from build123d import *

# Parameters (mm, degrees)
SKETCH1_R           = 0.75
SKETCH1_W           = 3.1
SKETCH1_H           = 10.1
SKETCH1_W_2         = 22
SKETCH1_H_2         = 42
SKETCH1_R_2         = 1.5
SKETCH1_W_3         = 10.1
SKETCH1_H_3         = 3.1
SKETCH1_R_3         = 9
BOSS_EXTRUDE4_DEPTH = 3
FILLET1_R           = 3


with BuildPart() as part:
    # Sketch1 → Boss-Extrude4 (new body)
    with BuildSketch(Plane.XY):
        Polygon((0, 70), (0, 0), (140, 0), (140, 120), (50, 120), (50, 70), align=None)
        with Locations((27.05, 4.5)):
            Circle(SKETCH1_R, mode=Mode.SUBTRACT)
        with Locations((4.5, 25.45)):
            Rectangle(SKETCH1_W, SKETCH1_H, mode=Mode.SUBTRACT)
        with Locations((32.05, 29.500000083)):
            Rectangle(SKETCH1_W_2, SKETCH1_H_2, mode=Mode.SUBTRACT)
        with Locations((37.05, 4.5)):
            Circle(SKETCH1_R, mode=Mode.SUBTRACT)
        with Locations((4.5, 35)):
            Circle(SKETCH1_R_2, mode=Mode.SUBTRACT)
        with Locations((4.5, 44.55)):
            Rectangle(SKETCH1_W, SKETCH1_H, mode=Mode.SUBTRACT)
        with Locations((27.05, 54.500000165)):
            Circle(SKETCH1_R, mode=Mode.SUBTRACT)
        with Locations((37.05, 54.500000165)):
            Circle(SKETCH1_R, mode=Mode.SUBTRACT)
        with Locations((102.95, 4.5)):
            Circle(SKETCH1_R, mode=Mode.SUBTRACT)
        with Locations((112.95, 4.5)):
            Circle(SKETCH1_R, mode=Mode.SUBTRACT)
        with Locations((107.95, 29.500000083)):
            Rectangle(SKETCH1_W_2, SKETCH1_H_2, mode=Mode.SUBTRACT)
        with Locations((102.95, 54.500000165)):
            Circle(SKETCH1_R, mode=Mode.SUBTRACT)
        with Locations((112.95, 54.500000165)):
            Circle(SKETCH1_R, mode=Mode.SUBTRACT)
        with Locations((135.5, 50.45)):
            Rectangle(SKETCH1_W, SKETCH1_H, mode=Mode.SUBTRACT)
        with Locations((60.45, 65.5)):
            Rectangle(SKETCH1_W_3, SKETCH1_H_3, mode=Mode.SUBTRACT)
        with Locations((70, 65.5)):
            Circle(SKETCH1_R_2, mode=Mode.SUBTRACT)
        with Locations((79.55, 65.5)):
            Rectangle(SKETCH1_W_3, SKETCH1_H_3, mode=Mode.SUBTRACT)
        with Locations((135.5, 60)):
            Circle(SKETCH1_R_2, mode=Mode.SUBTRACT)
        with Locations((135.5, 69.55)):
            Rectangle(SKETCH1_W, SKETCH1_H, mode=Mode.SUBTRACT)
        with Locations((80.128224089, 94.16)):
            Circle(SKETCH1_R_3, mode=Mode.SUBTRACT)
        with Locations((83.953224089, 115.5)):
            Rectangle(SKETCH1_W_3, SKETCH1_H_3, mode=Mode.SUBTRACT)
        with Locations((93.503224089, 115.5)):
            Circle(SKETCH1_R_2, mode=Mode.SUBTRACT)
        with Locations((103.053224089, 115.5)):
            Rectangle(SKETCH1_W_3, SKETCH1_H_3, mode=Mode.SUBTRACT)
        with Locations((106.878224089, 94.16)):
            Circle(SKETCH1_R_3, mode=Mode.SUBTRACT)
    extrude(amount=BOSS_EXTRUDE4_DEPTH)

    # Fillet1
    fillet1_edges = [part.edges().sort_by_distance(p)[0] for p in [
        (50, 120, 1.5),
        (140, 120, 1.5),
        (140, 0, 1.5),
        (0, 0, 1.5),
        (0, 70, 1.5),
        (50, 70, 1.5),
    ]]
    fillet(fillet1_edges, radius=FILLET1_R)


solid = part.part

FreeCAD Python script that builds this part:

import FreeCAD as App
import Part
import Sketcher


def edges_at(feature, points):
    """Names of the edges that pass closest to the given points."""
    edges = feature.Shape.Edges
    near = lambda p: min(range(len(edges)), key=lambda i: edges[i].distToShape(Part.Vertex(*p))[0])
    return sorted({f"Edge{near(p) + 1}" for p in points})


def add_polygon(sketch, points):
    """Adds a closed chain of lines whose ends are joined by coincident constraints."""
    first, n = sketch.GeometryCount, len(points)
    for a, b in zip(points, points[1:] + points[:1]):
        sketch.addGeometry(Part.LineSegment(App.Vector(*a, 0), App.Vector(*b, 0)), False)
    for i in range(n):
        sketch.addConstraint(Sketcher.Constraint("Coincident", first + i, 2, first + (i + 1) % n, 1))

doc = App.newDocument("Part")
body = doc.addObject("PartDesign::Body", "Body")

# Sketch on XY plane
sketch1 = body.newObject("Sketcher::SketchObject", "Sketch")
sketch1.AttachmentSupport = (doc.getObject("XY_Plane"), [""])
sketch1.MapMode = "FlatFace"
add_polygon(sketch1, [(0, 70), (0, 0), (140, 0), (140, 120), (50, 120), (50, 70)])  # lines 0-5
sketch1.addGeometry(Part.Circle(App.Vector(27.1, 4.5, 0), App.Vector(0, 0, 1), 0.8), False)  # 6
add_polygon(sketch1, [(6, 20.4), (3, 20.4), (3, 30.5), (6, 30.5)])  # lines 7-10
add_polygon(sketch1, [(43, 8.5), (21.1, 8.5), (21.1, 50.5), (43, 50.5)])  # lines 11-14
sketch1.addGeometry(Part.Circle(App.Vector(37, 4.5, 0), App.Vector(0, 0, 1), 0.8), False)  # 15
sketch1.addGeometry(Part.Circle(App.Vector(4.5, 35, 0), App.Vector(0, 0, 1), 1.5), False)  # 16
add_polygon(sketch1, [(6, 39.5), (3, 39.5), (3, 49.6), (6, 49.6)])  # lines 17-20
sketch1.addGeometry(Part.Circle(App.Vector(27.1, 54.5, 0), App.Vector(0, 0, 1), 0.8), False)  # 21
sketch1.addGeometry(Part.Circle(App.Vector(37, 54.5, 0), App.Vector(0, 0, 1), 0.8), False)  # 22
sketch1.addGeometry(Part.Circle(App.Vector(103, 4.5, 0), App.Vector(0, 0, 1), 0.8), False)  # 23
sketch1.addGeometry(Part.Circle(App.Vector(113, 4.5, 0), App.Vector(0, 0, 1), 0.8), False)  # 24
add_polygon(sketch1, [(119, 8.5), (97, 8.5), (97, 50.5), (119, 50.5)])  # lines 25-28
sketch1.addGeometry(Part.Circle(App.Vector(103, 54.5, 0), App.Vector(0, 0, 1), 0.8), False)  # 29
sketch1.addGeometry(Part.Circle(App.Vector(113, 54.5, 0), App.Vector(0, 0, 1), 0.8), False)  # 30
add_polygon(sketch1, [(137.1, 45.4), (133.9, 45.4), (133.9, 55.5), (137.1, 55.5)])  # lines 31-34
sketch1.addGeometry(Part.Circle(App.Vector(135.5, 60, 0), App.Vector(0, 0, 1), 1.5), False)  # 35
add_polygon(sketch1, [(65.5, 64), (55.4, 64), (55.4, 67), (65.5, 67)])  # lines 36-39
sketch1.addGeometry(Part.Circle(App.Vector(70, 65.5, 0), App.Vector(0, 0, 1), 1.5), False)  # 40
add_polygon(sketch1, [(84.6, 64), (74.5, 64), (74.5, 67), (84.6, 67)])  # lines 41-44
add_polygon(sketch1, [(137.1, 64.5), (133.9, 64.5), (133.9, 74.6), (137.1, 74.6)])  # lines 45-48
sketch1.addGeometry(Part.Circle(App.Vector(80.1, 94.2, 0), App.Vector(0, 0, 1), 9), False)  # 49
add_polygon(sketch1, [(89, 114), (78.9, 114), (78.9, 117), (89, 117)])  # lines 50-53
sketch1.addGeometry(Part.Circle(App.Vector(93.5, 115.5, 0), App.Vector(0, 0, 1), 1.5), False)  # 54
add_polygon(sketch1, [(108.1, 114), (98, 114), (98, 117), (108.1, 117)])  # lines 55-58
sketch1.addGeometry(Part.Circle(App.Vector(106.9, 94.2, 0), App.Vector(0, 0, 1), 9), False)  # 59
sketch1.addConstraint(Sketcher.Constraint("Vertical", 0))
sketch1.addConstraint(Sketcher.Constraint("Horizontal", 1))
sketch1.addConstraint(Sketcher.Constraint("Vertical", 2))
sketch1.addConstraint(Sketcher.Constraint("Horizontal", 3))
sketch1.addConstraint(Sketcher.Constraint("Vertical", 4))
sketch1.addConstraint(Sketcher.Constraint("Horizontal", 5))
sketch1.addConstraint(Sketcher.Constraint("Horizontal", 7))
sketch1.addConstraint(Sketcher.Constraint("Vertical", 8))
sketch1.addConstraint(Sketcher.Constraint("Horizontal", 9))
sketch1.addConstraint(Sketcher.Constraint("Vertical", 10))
sketch1.addConstraint(Sketcher.Constraint("Horizontal", 11))
sketch1.addConstraint(Sketcher.Constraint("Vertical", 12))
sketch1.addConstraint(Sketcher.Constraint("Horizontal", 13))
sketch1.addConstraint(Sketcher.Constraint("Vertical", 14))
sketch1.addConstraint(Sketcher.Constraint("Horizontal", 17))
sketch1.addConstraint(Sketcher.Constraint("Vertical", 18))
sketch1.addConstraint(Sketcher.Constraint("Horizontal", 19))
sketch1.addConstraint(Sketcher.Constraint("Vertical", 20))
sketch1.addConstraint(Sketcher.Constraint("Horizontal", 25))
sketch1.addConstraint(Sketcher.Constraint("Vertical", 26))
sketch1.addConstraint(Sketcher.Constraint("Horizontal", 27))
sketch1.addConstraint(Sketcher.Constraint("Vertical", 28))
sketch1.addConstraint(Sketcher.Constraint("Horizontal", 31))
sketch1.addConstraint(Sketcher.Constraint("Vertical", 32))
sketch1.addConstraint(Sketcher.Constraint("Horizontal", 33))
sketch1.addConstraint(Sketcher.Constraint("Vertical", 34))
sketch1.addConstraint(Sketcher.Constraint("Horizontal", 36))
sketch1.addConstraint(Sketcher.Constraint("Vertical", 37))
sketch1.addConstraint(Sketcher.Constraint("Horizontal", 38))
sketch1.addConstraint(Sketcher.Constraint("Vertical", 39))
sketch1.addConstraint(Sketcher.Constraint("Horizontal", 41))
sketch1.addConstraint(Sketcher.Constraint("Vertical", 42))
sketch1.addConstraint(Sketcher.Constraint("Horizontal", 43))
sketch1.addConstraint(Sketcher.Constraint("Vertical", 44))
sketch1.addConstraint(Sketcher.Constraint("Horizontal", 45))
sketch1.addConstraint(Sketcher.Constraint("Vertical", 46))
sketch1.addConstraint(Sketcher.Constraint("Horizontal", 47))
sketch1.addConstraint(Sketcher.Constraint("Vertical", 48))
sketch1.addConstraint(Sketcher.Constraint("Horizontal", 50))
sketch1.addConstraint(Sketcher.Constraint("Vertical", 51))
sketch1.addConstraint(Sketcher.Constraint("Horizontal", 52))
sketch1.addConstraint(Sketcher.Constraint("Vertical", 53))
sketch1.addConstraint(Sketcher.Constraint("Horizontal", 55))
sketch1.addConstraint(Sketcher.Constraint("Vertical", 56))
sketch1.addConstraint(Sketcher.Constraint("Horizontal", 57))
sketch1.addConstraint(Sketcher.Constraint("Vertical", 58))
sketch1.addConstraint(Sketcher.Constraint("Coincident", 0, 2, -1, 1))
sketch1.addConstraint(Sketcher.Constraint("Equal", 6, 15))
sketch1.addConstraint(Sketcher.Constraint("Equal", 15, 21))
sketch1.addConstraint(Sketcher.Constraint("Equal", 21, 22))
sketch1.addConstraint(Sketcher.Constraint("Equal", 22, 23))
sketch1.addConstraint(Sketcher.Constraint("Equal", 23, 24))
sketch1.addConstraint(Sketcher.Constraint("Equal", 24, 29))
sketch1.addConstraint(Sketcher.Constraint("Equal", 29, 30))
sketch1.addConstraint(Sketcher.Constraint("Equal", 16, 35))
sketch1.addConstraint(Sketcher.Constraint("Equal", 35, 40))
sketch1.addConstraint(Sketcher.Constraint("Equal", 40, 54))
sketch1.addConstraint(Sketcher.Constraint("Equal", 49, 59))
sketch1.addConstraint(Sketcher.Constraint("Horizontal", 6, 3, 15, 3))
sketch1.addConstraint(Sketcher.Constraint("Horizontal", 21, 3, 22, 3))
sketch1.addConstraint(Sketcher.Constraint("Horizontal", 15, 3, 23, 3))
sketch1.addConstraint(Sketcher.Constraint("Horizontal", 23, 3, 24, 3))
sketch1.addConstraint(Sketcher.Constraint("Horizontal", 22, 3, 29, 3))
sketch1.addConstraint(Sketcher.Constraint("Horizontal", 29, 3, 30, 3))
sketch1.addConstraint(Sketcher.Constraint("Horizontal", 49, 3, 59, 3))
sketch1.addConstraint(Sketcher.Constraint("Horizontal", 14, 2, 25, 2))
sketch1.addConstraint(Sketcher.Constraint("Horizontal", 13, 2, 26, 2))
sketch1.addConstraint(Sketcher.Constraint("Horizontal", 39, 2, 41, 2))
sketch1.addConstraint(Sketcher.Constraint("Horizontal", 38, 2, 42, 2))
sketch1.addConstraint(Sketcher.Constraint("Horizontal", 53, 2, 55, 2))
sketch1.addConstraint(Sketcher.Constraint("Horizontal", 52, 2, 56, 2))
sketch1.addConstraint(Sketcher.Constraint("Vertical", 6, 3, 21, 3))
sketch1.addConstraint(Sketcher.Constraint("Vertical", 15, 3, 22, 3))
sketch1.addConstraint(Sketcher.Constraint("Vertical", 23, 3, 29, 3))
sketch1.addConstraint(Sketcher.Constraint("Vertical", 24, 3, 30, 3))
sketch1.addConstraint(Sketcher.Constraint("Vertical", 8, 2, 17, 2))
sketch1.addConstraint(Sketcher.Constraint("Vertical", 10, 2, 19, 2))
sketch1.addConstraint(Sketcher.Constraint("Vertical", 32, 2, 45, 2))
sketch1.addConstraint(Sketcher.Constraint("Vertical", 34, 2, 47, 2))
sketch1.addConstraint(Sketcher.Constraint("Equal", 13, 25))
sketch1.addConstraint(Sketcher.Constraint("Equal", 19, 31))
sketch1.addConstraint(Sketcher.Constraint("Equal", 38, 41))
sketch1.addConstraint(Sketcher.Constraint("Equal", 43, 50))
sketch1.addConstraint(Sketcher.Constraint("Equal", 52, 55))
sketch1.addConstraint(Sketcher.Constraint("Equal", 5, 4))
sketch1.addConstraint(Sketcher.Constraint("Equal", 57, 8))
sketch1.addConstraint(Sketcher.Constraint("Equal", 10, 18))
sketch1.addConstraint(Sketcher.Constraint("Equal", 20, 32))
sketch1.addConstraint(Sketcher.Constraint("Equal", 47, 37))
sketch1.addConstraint(Sketcher.Constraint("Equal", 34, 46))
sketch1.addConstraint(Sketcher.Constraint("Equal", 44, 51))
sketch1.addConstraint(Sketcher.Constraint("Diameter", 16, 3.0))
sketch1.addConstraint(Sketcher.Constraint("Diameter", 49, 18.0))
sketch1.addConstraint(Sketcher.Constraint("Diameter", 6, 1.5))
sketch1.addConstraint(Sketcher.Constraint("DistanceX", 1, 1, 1, 2, 140.0))
sketch1.addConstraint(Sketcher.Constraint("DistanceX", 3, 2, 3, 1, 90.0))
sketch1.addConstraint(Sketcher.Constraint("DistanceX", 11, 2, 11, 1, 22.0))
sketch1.addConstraint(Sketcher.Constraint("DistanceY", 0, 2, 0, 1, 70.0))
sketch1.addConstraint(Sketcher.Constraint("DistanceY", 12, 1, 12, 2, 42.0))
sketch1.addConstraint(Sketcher.Constraint("DistanceX", 7, 2, 7, 1, 3.1))
sketch1.addConstraint(Sketcher.Constraint("DistanceX", 36, 2, 36, 1, 10.1))
sketch1.addConstraint(Sketcher.Constraint("DistanceY", -1, 1, 16, 3, 35.0))
sketch1.addConstraint(Sketcher.Constraint("DistanceY", -1, 1, 35, 3, 60.0))
sketch1.addConstraint(Sketcher.Constraint("DistanceX", -1, 1, 40, 3, 70.0))
sketch1.addConstraint(Sketcher.Constraint("DistanceX", 6, 3, 15, 3, 10.0))
sketch1.addConstraint(Sketcher.Constraint("DistanceY", 6, 3, 21, 3, 50.0))
sketch1.addConstraint(Sketcher.Constraint("DistanceX", 23, 3, 24, 3, 10.0))
sketch1.addConstraint(Sketcher.Constraint("DistanceY", 22, 3, 40, 3, 11.0))
sketch1.addConstraint(Sketcher.Constraint("DistanceY", 40, 3, 54, 3, 50.0))
sketch1.addConstraint(Sketcher.Constraint("DistanceY", 8, 2, 21, 3, 24.0))
sketch1.addConstraint(Sketcher.Constraint("DistanceX", 9, 2, 21, 3, 21.0))
sketch1.addConstraint(Sketcher.Constraint("DistanceX", 11, 2, 6, 3, 6.0))
sketch1.addConstraint(Sketcher.Constraint("DistanceY", 6, 3, 11, 2, 4.0))
sketch1.addConstraint(Sketcher.Constraint("DistanceY", 8, 2, 17, 2, 9.0))
sketch1.addConstraint(Sketcher.Constraint("DistanceX", 25, 2, 23, 3, 6.0))
sketch1.addConstraint(Sketcher.Constraint("DistanceX", 27, 2, 31, 2, 15.0))
sketch1.addConstraint(Sketcher.Constraint("DistanceY", 27, 2, 32, 2, 5.0))
sketch1.addConstraint(Sketcher.Constraint("DistanceX", 39, 2, 41, 2, 9.0))
sketch1.addConstraint(Sketcher.Constraint("DistanceY", 32, 2, 45, 2, 9.0))
sketch1.addConstraint(Sketcher.Constraint("DistanceX", 53, 2, 55, 2, 9.0))
sketch1.addConstraint(Sketcher.Constraint("DistanceY", -1, 1, 6, 3, 4.5))
sketch1.addConstraint(Sketcher.Constraint("DistanceX", -1, 1, 16, 3, 4.5))
sketch1.addConstraint(Sketcher.Constraint("DistanceX", -1, 1, 35, 3, 135.5))
sketch1.addConstraint(Sketcher.Constraint("DistanceX", -1, 1, 36, 2, 55.4))
sketch1.addConstraint(Sketcher.Constraint("DistanceX", 15, 3, 23, 3, 65.9))
sketch1.addConstraint(Sketcher.Constraint("DistanceX", 50, 2, 54, 3, 14.6))
sketch1.addConstraint(Sketcher.Constraint("DistanceY", 42, 2, 50, 2, 46.9))
sketch1.addConstraint(Sketcher.Constraint("DistanceX", -1, 1, 6, 3, 27.05))
sketch1.addConstraint(Sketcher.Constraint("DistanceY", -1, 1, 49, 3, 94.16))
sketch1.addConstraint(Sketcher.Constraint("DistanceY", -1, 1, 36, 2, 63.95))
sketch1.addConstraint(Sketcher.Constraint("DistanceX", 49, 3, 59, 3, 26.75))
sketch1.addConstraint(Sketcher.Constraint("DistanceX", 49, 3, 54, 3, 13.375))
sketch1.addConstraint(Sketcher.Constraint("DistanceX", -1, 1, 49, 3, 80.128224))
pad1 = body.newObject("PartDesign::Pad", "Pad")
pad1.Profile = sketch1
pad1.Length = 3
doc.recompute()

fillet = body.newObject("PartDesign::Fillet", "Fillet")
fillet.Base = (pad1, edges_at(pad1, [
    (50, 120, 1.5),
    (140, 120, 1.5),
    (140, 0, 1.5),
    (0, 0, 1.5),
    (0, 70, 1.5),
    (50, 70, 1.5),
]))
fillet.Radius = 3

doc.recompute()
